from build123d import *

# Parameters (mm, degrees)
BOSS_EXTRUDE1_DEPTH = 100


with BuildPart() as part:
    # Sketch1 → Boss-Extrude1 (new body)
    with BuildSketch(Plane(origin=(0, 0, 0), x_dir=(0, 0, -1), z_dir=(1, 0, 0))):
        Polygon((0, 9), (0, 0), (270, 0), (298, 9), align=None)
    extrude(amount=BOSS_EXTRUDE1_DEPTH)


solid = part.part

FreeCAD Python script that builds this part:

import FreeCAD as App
import Part
import Sketcher
from FreeCAD import Vector
Q = App.Units.Quantity


def add_polygon(sketch, points):
    """Adds a closed chain of lines whose ends are joined by coincident constraints."""
    first, n = sketch.GeometryCount, len(points)
    for a, b in zip(points, points[1:] + points[:1]):
        sketch.addGeometry(Part.LineSegment(App.Vector(*a, 0), App.Vector(*b, 0)), False)
    for i in range(n):
        sketch.addConstraint(Sketcher.Constraint("Coincident", first + i, 2, first + (i + 1) % n, 1))

doc = App.newDocument("Part")
body = doc.addObject("PartDesign::Body", "Body")

sketch1 = body.newObject("Sketcher::SketchObject", "Sketch")
sketch1.AttachmentSupport = (doc.getObject("YZ_Plane"), [""])
sketch1.MapMode = "FlatFace"
add_polygon(sketch1, [(9, 0), (0, 0), (0, -270), (9, -298)])
sketch1.addConstraint([
    Sketcher.Constraint("Horizontal", 0),
    Sketcher.Constraint("Vertical", 1),
    Sketcher.Constraint("Vertical", 3),
    Sketcher.Constraint("Coincident", 0, 2, -1, 1),
    Sketcher.Constraint("DistanceX", 0, 2, 0, 1, Q("9 mm")),
    Sketcher.Constraint("DistanceY", 1, 2, 1, 1, Q("270 mm")),
    Sketcher.Constraint("DistanceY", 3, 1, 3, 2, Q("298 mm")),
])
pad1 = body.newObject("PartDesign::Pad", "Pad")
pad1.Profile = sketch1
pad1.Length = 100

doc.recompute()
